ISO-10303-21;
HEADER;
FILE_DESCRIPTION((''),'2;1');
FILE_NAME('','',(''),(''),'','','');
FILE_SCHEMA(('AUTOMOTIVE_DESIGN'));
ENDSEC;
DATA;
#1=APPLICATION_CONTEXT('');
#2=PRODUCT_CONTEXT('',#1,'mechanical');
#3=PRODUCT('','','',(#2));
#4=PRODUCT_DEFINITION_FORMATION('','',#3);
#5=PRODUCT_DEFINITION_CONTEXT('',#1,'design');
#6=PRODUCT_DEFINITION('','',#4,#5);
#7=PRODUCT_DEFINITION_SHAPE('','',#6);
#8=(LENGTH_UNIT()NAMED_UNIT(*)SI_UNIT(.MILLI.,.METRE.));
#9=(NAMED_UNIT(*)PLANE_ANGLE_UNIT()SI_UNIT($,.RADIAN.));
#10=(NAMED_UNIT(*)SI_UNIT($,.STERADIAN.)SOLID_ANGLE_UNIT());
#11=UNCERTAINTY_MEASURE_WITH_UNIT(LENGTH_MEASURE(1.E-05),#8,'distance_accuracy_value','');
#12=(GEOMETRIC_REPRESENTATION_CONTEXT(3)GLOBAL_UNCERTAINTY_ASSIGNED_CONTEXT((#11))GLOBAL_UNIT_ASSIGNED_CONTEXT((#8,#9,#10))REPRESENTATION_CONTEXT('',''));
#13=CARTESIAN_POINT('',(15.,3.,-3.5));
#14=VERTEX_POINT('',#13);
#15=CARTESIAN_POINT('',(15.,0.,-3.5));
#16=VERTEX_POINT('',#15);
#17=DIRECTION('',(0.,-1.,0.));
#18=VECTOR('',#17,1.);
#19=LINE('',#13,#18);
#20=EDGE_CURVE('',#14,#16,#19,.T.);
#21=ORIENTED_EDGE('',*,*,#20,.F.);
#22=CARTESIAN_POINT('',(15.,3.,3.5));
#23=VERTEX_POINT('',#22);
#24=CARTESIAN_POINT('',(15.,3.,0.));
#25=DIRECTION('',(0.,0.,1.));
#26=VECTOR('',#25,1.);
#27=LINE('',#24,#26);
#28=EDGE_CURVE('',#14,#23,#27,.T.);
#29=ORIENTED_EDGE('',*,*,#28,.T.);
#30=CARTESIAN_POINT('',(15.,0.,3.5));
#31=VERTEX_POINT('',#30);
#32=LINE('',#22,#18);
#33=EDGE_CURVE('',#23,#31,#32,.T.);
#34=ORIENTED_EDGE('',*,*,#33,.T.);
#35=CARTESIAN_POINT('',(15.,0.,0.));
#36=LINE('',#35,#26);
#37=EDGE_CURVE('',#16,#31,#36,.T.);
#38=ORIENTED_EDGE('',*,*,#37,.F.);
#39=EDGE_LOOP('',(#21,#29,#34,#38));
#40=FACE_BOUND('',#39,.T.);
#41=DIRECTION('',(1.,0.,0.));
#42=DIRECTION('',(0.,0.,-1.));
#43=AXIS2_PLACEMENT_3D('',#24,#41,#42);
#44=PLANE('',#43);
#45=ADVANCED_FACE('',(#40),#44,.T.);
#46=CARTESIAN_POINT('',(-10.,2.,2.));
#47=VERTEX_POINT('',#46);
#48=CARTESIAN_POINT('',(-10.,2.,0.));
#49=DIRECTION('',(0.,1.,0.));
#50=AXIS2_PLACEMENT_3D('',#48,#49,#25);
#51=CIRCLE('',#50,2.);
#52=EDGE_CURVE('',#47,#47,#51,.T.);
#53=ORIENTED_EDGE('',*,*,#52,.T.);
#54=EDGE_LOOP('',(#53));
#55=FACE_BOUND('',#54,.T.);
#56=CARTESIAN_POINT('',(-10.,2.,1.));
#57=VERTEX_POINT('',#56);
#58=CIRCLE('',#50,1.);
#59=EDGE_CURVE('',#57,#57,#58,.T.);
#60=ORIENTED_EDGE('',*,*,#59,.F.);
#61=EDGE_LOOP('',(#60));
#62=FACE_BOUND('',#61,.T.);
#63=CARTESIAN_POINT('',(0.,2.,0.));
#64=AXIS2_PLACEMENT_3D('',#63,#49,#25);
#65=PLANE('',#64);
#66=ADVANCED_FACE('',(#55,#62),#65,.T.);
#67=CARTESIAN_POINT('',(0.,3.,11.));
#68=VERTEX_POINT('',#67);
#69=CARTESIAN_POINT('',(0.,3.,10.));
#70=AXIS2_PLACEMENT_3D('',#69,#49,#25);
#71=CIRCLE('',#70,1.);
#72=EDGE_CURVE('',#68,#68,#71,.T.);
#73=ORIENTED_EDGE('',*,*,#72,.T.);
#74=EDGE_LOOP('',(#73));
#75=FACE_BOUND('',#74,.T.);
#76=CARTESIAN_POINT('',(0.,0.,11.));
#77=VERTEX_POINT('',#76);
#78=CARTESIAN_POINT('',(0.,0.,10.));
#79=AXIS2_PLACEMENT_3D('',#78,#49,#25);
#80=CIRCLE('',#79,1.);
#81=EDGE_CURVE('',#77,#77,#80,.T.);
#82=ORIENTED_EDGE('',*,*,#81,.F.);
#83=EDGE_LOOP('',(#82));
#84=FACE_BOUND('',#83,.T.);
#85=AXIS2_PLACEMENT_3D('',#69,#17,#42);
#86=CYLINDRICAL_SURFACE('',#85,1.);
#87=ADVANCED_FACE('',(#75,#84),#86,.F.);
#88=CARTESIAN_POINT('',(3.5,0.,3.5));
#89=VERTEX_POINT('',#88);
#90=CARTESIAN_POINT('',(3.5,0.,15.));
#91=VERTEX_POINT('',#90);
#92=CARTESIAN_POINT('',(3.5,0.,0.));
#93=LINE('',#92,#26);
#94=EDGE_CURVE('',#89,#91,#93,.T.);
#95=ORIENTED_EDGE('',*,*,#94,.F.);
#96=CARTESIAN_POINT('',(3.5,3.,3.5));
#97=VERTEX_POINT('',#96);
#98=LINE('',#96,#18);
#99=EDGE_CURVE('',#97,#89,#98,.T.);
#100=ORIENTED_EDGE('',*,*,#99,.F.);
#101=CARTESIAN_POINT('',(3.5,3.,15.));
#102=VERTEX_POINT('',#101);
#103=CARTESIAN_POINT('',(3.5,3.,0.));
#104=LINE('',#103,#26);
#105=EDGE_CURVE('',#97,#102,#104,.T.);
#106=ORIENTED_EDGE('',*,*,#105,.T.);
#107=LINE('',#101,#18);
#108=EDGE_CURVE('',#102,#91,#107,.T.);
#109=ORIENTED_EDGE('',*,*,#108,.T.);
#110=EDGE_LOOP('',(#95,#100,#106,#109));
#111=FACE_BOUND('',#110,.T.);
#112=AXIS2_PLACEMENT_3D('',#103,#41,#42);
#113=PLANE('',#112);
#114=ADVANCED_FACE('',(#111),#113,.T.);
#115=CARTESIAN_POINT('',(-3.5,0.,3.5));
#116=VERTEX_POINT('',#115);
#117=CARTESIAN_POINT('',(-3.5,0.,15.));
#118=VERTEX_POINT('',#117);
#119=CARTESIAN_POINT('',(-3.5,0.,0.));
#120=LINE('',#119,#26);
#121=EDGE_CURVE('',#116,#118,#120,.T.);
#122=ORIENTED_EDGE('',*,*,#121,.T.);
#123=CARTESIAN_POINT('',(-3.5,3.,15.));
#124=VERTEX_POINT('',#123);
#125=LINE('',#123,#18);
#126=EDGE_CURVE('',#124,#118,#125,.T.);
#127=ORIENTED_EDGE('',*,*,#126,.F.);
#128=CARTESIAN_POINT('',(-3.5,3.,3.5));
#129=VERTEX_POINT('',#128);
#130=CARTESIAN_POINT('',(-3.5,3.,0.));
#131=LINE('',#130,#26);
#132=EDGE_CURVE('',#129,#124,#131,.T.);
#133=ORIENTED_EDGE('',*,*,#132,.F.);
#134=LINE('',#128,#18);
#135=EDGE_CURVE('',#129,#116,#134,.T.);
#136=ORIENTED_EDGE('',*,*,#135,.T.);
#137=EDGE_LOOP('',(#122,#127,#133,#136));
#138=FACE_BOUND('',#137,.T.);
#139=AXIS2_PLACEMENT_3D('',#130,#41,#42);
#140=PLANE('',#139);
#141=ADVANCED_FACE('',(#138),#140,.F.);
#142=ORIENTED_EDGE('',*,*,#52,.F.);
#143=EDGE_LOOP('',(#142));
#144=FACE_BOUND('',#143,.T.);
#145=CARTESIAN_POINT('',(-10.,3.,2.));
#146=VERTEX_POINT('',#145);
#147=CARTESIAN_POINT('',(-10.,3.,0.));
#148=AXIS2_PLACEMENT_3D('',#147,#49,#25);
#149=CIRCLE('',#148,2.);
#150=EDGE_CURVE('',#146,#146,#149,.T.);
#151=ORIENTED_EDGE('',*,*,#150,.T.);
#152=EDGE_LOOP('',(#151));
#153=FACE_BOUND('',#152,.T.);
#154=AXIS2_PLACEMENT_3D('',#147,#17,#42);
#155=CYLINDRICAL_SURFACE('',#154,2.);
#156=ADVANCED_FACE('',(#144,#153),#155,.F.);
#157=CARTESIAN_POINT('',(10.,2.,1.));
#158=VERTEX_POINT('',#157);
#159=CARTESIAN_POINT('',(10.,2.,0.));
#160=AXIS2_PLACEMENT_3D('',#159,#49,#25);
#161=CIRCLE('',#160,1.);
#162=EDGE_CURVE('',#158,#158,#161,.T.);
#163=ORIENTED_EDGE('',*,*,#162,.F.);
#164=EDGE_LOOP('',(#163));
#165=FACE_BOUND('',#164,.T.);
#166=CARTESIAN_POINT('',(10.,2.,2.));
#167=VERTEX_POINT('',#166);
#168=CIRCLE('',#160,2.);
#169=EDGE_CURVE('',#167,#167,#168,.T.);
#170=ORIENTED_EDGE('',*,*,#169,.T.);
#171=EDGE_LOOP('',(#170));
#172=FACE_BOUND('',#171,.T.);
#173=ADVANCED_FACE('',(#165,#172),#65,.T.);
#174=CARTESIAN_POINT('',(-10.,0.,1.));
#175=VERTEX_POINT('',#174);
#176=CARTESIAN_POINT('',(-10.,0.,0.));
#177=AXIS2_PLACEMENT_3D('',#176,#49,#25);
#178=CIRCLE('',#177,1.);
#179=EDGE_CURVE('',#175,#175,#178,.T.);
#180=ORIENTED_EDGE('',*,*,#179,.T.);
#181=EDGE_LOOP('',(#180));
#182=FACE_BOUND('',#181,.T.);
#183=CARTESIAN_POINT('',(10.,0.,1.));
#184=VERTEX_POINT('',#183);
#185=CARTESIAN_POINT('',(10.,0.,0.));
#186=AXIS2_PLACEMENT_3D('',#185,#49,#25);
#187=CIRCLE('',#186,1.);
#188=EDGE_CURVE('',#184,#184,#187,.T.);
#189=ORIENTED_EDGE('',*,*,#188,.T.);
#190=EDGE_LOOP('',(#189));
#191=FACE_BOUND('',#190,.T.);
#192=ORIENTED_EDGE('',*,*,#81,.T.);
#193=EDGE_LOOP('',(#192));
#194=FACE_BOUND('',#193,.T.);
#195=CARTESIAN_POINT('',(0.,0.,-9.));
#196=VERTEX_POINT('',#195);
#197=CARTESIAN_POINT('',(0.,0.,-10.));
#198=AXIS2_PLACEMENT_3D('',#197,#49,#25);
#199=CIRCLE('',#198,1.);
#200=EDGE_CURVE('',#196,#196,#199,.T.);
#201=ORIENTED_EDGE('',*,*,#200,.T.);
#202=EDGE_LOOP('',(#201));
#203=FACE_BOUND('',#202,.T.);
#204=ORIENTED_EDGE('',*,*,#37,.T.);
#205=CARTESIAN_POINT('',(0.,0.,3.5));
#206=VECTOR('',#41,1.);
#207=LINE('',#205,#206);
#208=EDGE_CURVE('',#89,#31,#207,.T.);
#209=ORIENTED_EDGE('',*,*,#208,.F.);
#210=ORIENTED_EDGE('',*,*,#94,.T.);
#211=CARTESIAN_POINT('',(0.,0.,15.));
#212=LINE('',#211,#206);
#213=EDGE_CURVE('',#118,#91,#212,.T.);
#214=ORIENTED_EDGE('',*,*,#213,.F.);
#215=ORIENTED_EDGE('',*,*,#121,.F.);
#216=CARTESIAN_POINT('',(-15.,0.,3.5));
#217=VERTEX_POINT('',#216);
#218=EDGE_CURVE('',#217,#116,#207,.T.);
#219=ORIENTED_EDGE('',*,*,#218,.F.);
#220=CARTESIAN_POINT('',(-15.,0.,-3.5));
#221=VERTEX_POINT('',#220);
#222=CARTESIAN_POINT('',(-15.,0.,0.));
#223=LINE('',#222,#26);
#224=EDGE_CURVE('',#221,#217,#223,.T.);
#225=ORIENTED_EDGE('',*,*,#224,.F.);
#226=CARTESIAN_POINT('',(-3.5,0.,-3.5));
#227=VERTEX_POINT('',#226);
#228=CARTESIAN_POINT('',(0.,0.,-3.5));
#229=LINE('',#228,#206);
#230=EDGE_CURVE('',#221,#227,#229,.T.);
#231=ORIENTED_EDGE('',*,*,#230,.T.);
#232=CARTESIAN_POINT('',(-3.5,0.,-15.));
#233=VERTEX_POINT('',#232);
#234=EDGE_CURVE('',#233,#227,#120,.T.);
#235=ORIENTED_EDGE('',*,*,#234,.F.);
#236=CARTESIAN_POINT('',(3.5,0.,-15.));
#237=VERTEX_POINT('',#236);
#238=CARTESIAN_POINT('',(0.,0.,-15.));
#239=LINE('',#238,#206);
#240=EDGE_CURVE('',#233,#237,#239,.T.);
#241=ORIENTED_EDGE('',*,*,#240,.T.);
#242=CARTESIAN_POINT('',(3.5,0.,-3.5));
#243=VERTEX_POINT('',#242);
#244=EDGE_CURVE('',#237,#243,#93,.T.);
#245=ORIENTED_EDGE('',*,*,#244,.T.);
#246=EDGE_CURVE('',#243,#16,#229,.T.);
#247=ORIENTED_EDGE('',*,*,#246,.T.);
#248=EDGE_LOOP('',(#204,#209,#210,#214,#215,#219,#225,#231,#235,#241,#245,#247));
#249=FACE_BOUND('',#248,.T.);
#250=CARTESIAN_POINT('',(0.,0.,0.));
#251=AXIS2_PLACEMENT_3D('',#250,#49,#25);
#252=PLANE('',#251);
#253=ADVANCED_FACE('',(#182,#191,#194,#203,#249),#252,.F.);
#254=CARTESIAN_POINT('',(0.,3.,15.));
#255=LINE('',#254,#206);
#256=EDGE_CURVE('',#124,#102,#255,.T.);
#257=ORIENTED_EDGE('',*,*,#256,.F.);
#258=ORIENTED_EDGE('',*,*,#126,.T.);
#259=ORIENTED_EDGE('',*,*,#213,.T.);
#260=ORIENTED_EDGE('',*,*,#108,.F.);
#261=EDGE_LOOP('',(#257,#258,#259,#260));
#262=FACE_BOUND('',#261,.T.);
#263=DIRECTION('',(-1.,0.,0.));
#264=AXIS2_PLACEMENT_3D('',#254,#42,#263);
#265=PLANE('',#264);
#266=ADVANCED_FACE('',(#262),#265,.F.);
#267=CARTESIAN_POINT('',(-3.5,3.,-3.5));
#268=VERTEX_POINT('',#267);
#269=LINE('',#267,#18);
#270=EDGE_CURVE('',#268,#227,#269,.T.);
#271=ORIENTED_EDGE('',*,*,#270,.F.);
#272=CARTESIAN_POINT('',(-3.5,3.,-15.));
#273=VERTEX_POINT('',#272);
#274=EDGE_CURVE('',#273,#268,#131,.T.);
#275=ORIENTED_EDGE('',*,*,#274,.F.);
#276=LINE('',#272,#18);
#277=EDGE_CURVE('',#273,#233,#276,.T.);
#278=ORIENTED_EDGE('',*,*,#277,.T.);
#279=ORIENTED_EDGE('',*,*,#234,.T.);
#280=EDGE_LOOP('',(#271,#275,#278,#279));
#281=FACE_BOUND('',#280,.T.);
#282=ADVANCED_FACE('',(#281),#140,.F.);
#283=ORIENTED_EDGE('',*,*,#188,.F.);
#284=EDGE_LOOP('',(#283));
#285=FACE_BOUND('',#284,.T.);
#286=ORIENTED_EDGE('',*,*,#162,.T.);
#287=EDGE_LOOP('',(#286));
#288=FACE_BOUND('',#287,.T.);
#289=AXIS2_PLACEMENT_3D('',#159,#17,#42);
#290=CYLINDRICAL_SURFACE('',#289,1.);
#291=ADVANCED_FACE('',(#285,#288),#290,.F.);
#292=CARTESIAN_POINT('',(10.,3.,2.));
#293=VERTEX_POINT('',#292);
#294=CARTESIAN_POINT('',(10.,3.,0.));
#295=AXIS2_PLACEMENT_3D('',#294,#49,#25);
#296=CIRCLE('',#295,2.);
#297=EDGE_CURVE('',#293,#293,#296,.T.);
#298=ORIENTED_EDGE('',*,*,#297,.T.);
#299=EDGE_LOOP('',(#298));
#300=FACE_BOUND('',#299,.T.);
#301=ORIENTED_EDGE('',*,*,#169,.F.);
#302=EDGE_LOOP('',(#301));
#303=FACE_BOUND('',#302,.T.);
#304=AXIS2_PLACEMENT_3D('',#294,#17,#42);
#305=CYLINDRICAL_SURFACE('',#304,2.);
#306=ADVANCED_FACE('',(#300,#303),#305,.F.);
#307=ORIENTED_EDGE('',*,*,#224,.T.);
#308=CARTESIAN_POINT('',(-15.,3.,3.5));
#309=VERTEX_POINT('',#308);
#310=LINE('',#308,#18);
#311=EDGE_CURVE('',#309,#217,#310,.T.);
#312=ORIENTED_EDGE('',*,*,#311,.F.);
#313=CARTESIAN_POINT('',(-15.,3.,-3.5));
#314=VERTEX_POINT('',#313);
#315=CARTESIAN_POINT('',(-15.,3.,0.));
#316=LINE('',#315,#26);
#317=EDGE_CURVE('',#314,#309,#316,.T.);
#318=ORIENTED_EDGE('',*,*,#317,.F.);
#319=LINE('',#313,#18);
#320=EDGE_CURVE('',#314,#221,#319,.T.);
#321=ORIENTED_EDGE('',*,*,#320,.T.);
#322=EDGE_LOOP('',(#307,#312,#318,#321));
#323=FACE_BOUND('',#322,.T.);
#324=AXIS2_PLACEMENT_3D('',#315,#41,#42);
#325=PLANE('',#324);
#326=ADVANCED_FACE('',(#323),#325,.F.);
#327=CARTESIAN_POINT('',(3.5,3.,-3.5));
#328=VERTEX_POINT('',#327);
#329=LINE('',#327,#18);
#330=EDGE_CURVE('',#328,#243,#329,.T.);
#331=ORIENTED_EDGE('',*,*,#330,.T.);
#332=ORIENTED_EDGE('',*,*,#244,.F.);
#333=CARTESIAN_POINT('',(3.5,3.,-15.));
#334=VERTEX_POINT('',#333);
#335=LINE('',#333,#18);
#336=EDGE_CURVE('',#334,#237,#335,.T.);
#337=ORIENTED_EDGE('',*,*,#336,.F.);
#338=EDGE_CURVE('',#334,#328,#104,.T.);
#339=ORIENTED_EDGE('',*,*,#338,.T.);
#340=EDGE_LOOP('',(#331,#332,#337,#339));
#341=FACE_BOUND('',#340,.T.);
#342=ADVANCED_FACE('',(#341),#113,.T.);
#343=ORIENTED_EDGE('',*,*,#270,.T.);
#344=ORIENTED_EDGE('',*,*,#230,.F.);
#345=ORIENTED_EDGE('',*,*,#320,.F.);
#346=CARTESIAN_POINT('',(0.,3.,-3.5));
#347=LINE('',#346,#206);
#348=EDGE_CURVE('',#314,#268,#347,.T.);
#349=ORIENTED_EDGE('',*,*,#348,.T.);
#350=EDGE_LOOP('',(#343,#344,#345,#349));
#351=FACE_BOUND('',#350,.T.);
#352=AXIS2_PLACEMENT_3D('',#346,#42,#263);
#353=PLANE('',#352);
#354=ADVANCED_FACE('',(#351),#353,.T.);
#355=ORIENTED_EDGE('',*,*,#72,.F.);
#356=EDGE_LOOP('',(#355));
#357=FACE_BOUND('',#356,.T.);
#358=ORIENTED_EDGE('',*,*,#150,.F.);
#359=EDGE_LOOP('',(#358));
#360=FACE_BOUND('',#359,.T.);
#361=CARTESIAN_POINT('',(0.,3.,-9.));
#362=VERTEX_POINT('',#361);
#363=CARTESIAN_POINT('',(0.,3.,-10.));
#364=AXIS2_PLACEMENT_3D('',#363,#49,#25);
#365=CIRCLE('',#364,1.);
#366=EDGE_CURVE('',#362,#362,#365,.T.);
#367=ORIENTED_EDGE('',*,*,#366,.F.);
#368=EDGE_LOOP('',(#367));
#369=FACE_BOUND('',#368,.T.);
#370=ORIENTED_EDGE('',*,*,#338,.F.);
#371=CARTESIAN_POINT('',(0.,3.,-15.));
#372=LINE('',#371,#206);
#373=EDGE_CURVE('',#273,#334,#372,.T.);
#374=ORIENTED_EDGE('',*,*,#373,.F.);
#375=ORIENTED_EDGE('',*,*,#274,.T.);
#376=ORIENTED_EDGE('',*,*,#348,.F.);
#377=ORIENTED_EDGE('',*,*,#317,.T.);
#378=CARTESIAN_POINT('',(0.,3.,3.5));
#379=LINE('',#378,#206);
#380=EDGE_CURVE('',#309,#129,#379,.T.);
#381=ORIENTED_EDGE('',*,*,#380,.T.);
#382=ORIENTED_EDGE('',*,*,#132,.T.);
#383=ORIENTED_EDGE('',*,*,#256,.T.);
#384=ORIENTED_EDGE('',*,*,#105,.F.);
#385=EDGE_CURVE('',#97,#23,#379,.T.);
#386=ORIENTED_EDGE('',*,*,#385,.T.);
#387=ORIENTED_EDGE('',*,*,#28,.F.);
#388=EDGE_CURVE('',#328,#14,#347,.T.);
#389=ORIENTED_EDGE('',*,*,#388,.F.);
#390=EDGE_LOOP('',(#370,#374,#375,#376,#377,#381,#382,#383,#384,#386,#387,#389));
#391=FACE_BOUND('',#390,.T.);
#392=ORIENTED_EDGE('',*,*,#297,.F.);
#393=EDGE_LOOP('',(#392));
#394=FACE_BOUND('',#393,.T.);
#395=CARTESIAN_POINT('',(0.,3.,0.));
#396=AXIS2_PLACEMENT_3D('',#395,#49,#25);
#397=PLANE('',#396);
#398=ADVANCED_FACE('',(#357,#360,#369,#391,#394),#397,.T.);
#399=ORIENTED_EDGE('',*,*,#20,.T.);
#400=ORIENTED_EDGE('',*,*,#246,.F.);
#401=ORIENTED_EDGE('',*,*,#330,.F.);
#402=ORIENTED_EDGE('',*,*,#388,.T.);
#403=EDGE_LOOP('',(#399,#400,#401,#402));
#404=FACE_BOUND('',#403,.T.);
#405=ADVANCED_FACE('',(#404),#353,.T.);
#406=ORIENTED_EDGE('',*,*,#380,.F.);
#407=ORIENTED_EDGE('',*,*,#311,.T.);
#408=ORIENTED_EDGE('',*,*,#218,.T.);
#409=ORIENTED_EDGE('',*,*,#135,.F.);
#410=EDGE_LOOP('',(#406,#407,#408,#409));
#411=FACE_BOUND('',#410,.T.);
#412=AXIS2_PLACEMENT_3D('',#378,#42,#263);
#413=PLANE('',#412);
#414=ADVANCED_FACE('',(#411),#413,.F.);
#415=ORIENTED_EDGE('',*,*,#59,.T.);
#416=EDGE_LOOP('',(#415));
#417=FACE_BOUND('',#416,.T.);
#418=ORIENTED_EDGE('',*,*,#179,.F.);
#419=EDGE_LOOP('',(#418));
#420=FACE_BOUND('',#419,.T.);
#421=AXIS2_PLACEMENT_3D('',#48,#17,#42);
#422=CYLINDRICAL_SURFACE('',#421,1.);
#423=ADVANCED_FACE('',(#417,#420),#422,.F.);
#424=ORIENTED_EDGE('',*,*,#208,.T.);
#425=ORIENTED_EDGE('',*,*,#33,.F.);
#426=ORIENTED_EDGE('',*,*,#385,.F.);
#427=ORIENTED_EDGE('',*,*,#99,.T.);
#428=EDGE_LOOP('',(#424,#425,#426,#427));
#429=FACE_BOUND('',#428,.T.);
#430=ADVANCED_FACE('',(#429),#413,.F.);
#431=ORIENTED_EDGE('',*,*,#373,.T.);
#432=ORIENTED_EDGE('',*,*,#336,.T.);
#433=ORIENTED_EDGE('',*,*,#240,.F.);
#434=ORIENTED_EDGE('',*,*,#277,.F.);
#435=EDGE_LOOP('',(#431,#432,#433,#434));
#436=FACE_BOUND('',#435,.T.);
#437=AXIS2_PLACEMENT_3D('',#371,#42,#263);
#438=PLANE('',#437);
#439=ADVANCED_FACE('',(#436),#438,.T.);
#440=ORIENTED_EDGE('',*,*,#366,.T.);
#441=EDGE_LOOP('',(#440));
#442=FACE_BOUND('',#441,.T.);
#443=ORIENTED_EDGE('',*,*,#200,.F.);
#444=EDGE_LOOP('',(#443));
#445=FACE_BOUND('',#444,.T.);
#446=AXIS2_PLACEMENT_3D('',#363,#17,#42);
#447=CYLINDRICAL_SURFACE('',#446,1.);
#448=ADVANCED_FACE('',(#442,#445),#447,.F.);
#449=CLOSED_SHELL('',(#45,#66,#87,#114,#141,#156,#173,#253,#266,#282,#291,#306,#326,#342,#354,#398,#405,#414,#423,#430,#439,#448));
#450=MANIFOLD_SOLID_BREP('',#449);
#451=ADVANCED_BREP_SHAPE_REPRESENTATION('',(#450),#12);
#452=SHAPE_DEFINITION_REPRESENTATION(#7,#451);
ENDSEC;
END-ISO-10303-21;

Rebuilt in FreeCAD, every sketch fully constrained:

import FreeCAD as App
import Part
import Sketcher
from FreeCAD import Vector


def add_polygon(sketch, points):
    """Adds a closed chain of lines whose ends are joined by coincident constraints."""
    first, n = sketch.GeometryCount, len(points)
    for a, b in zip(points, points[1:] + points[:1]):
        sketch.addGeometry(Part.LineSegment(App.Vector(*a, 0), App.Vector(*b, 0)), False)
    for i in range(n):
        sketch.addConstraint(Sketcher.Constraint("Coincident", first + i, 2, first + (i + 1) % n, 1))

doc = App.newDocument("Part")
body = doc.addObject("PartDesign::Body", "Body")

# Sketch on XZ plane
sketch1 = body.newObject("Sketcher::SketchObject", "Sketch")
sketch1.AttachmentSupport = (doc.getObject("XZ_Plane"), [""])
sketch1.MapMode = "FlatFace"
add_polygon(sketch1, [(-15, -3.5), (-15, 3.5), (-3.5, 3.5), (-3.5, 15), (3.5, 15), (3.5, 3.5), (15, 3.5), (15, -3.5), (3.5, -3.5), (3.5, -15), (-3.5, -15), (-3.5, -3.5)])  # lines 0-11
sketch1.addGeometry(Part.Circle(Vector(0, 10, 0), Vector(0, 0, 1), 1), False)  # 12
sketch1.addGeometry(Part.Circle(Vector(-10, 0, 0), Vector(0, 0, 1), 2), False)  # 13
sketch1.addGeometry(Part.Circle(Vector(10, 0, 0), Vector(0, 0, 1), 2), False)  # 14
sketch1.addGeometry(Part.Circle(Vector(0, -10, 0), Vector(0, 0, 1), 1), False)  # 15
sketch1.addConstraint([
    Sketcher.Constraint("Vertical", 0),
    Sketcher.Constraint("Horizontal", 1),
    Sketcher.Constraint("Vertical", 2),
    Sketcher.Constraint("Horizontal", 3),
    Sketcher.Constraint("Vertical", 4),
    Sketcher.Constraint("Horizontal", 5),
    Sketcher.Constraint("Vertical", 6),
    Sketcher.Constraint("Horizontal", 7),
    Sketcher.Constraint("Vertical", 8),
    Sketcher.Constraint("Horizontal", 9),
    Sketcher.Constraint("Vertical", 10),
    Sketcher.Constraint("Horizontal", 11),
    Sketcher.Constraint("Equal", 13, 14),
    Sketcher.Constraint("Equal", 12, 15),
    Sketcher.Constraint("Symmetric", 13, 3, 14, 3, -1, 1),
    Sketcher.Constraint("Symmetric", 12, 3, 15, 3, -1, 1),
    Sketcher.Constraint("Symmetric", 0, 2, 6, 2, -1, 1),
    Sketcher.Constraint("Symmetric", 2, 2, 8, 2, -1, 1),
    Sketcher.Constraint("Symmetric", 4, 2, 10, 2, -1, 1),
    Sketcher.Constraint("Symmetric", 1, 2, 4, 2, -2),
    Sketcher.Constraint("PointOnObject", 12, 3, -2),
    Sketcher.Constraint("PointOnObject", 13, 3, -1),
    Sketcher.Constraint("Equal", 9, 0),
    Sketcher.Constraint("Equal", 11, 2),
    Sketcher.Constraint("Diameter", 12, 2.0),
    Sketcher.Constraint("Diameter", 13, 4.0),
    Sketcher.Constraint("DistanceX", 3, 1, 3, 2, 7.0),
    Sketcher.Constraint("DistanceX", 1, 1, 1, 2, 11.5),
    Sketcher.Constraint("DistanceY", -1, 1, 12, 3, 10.0),
    Sketcher.Constraint("DistanceX", 13, 3, -1, 1, 10.0),
])
pad1 = body.newObject("PartDesign::Pad", "Pad")
pad1.Profile = sketch1
pad1.Length = 3
pad1.Reversed = True

# Sketch on XZ plane
sketch2 = body.newObject("Sketcher::SketchObject", "Sketch001")
sketch2.AttachmentSupport = (doc.getObject("XZ_Plane"), [""])
sketch2.MapMode = "FlatFace"
sketch2.addGeometry([
    Part.Circle(Vector(-10, 0, 0), Vector(0, 0, 1), 2),
    Part.Circle(Vector(-10, 0, 0), Vector(0, 0, 1), 1),
    Part.Circle(Vector(10, 0, 0), Vector(0, 0, 1), 2),
    Part.Circle(Vector(10, 0, 0), Vector(0, 0, 1), 1),
], False)
sketch2.addConstraint([
    Sketcher.Constraint("Coincident", 1, 3, 0, 3),
    Sketcher.Constraint("Coincident", 3, 3, 2, 3),
    Sketcher.Constraint("Equal", 0, 2),
    Sketcher.Constraint("Equal", 1, 3),
    Sketcher.Constraint("Symmetric", 0, 3, 2, 3, -1, 1),
    Sketcher.Constraint("PointOnObject", 0, 3, -1),
    Sketcher.Constraint("Diameter", 0, 4.0),
    Sketcher.Constraint("Diameter", 1, 2.0),
    Sketcher.Constraint("DistanceX", 0, 3, -1, 1, 10.0),
])
pad2 = body.newObject("PartDesign::Pad", "Pad001")
pad2.Profile = sketch2
pad2.Length = 2
pad2.Reversed = True

doc.recompute()
